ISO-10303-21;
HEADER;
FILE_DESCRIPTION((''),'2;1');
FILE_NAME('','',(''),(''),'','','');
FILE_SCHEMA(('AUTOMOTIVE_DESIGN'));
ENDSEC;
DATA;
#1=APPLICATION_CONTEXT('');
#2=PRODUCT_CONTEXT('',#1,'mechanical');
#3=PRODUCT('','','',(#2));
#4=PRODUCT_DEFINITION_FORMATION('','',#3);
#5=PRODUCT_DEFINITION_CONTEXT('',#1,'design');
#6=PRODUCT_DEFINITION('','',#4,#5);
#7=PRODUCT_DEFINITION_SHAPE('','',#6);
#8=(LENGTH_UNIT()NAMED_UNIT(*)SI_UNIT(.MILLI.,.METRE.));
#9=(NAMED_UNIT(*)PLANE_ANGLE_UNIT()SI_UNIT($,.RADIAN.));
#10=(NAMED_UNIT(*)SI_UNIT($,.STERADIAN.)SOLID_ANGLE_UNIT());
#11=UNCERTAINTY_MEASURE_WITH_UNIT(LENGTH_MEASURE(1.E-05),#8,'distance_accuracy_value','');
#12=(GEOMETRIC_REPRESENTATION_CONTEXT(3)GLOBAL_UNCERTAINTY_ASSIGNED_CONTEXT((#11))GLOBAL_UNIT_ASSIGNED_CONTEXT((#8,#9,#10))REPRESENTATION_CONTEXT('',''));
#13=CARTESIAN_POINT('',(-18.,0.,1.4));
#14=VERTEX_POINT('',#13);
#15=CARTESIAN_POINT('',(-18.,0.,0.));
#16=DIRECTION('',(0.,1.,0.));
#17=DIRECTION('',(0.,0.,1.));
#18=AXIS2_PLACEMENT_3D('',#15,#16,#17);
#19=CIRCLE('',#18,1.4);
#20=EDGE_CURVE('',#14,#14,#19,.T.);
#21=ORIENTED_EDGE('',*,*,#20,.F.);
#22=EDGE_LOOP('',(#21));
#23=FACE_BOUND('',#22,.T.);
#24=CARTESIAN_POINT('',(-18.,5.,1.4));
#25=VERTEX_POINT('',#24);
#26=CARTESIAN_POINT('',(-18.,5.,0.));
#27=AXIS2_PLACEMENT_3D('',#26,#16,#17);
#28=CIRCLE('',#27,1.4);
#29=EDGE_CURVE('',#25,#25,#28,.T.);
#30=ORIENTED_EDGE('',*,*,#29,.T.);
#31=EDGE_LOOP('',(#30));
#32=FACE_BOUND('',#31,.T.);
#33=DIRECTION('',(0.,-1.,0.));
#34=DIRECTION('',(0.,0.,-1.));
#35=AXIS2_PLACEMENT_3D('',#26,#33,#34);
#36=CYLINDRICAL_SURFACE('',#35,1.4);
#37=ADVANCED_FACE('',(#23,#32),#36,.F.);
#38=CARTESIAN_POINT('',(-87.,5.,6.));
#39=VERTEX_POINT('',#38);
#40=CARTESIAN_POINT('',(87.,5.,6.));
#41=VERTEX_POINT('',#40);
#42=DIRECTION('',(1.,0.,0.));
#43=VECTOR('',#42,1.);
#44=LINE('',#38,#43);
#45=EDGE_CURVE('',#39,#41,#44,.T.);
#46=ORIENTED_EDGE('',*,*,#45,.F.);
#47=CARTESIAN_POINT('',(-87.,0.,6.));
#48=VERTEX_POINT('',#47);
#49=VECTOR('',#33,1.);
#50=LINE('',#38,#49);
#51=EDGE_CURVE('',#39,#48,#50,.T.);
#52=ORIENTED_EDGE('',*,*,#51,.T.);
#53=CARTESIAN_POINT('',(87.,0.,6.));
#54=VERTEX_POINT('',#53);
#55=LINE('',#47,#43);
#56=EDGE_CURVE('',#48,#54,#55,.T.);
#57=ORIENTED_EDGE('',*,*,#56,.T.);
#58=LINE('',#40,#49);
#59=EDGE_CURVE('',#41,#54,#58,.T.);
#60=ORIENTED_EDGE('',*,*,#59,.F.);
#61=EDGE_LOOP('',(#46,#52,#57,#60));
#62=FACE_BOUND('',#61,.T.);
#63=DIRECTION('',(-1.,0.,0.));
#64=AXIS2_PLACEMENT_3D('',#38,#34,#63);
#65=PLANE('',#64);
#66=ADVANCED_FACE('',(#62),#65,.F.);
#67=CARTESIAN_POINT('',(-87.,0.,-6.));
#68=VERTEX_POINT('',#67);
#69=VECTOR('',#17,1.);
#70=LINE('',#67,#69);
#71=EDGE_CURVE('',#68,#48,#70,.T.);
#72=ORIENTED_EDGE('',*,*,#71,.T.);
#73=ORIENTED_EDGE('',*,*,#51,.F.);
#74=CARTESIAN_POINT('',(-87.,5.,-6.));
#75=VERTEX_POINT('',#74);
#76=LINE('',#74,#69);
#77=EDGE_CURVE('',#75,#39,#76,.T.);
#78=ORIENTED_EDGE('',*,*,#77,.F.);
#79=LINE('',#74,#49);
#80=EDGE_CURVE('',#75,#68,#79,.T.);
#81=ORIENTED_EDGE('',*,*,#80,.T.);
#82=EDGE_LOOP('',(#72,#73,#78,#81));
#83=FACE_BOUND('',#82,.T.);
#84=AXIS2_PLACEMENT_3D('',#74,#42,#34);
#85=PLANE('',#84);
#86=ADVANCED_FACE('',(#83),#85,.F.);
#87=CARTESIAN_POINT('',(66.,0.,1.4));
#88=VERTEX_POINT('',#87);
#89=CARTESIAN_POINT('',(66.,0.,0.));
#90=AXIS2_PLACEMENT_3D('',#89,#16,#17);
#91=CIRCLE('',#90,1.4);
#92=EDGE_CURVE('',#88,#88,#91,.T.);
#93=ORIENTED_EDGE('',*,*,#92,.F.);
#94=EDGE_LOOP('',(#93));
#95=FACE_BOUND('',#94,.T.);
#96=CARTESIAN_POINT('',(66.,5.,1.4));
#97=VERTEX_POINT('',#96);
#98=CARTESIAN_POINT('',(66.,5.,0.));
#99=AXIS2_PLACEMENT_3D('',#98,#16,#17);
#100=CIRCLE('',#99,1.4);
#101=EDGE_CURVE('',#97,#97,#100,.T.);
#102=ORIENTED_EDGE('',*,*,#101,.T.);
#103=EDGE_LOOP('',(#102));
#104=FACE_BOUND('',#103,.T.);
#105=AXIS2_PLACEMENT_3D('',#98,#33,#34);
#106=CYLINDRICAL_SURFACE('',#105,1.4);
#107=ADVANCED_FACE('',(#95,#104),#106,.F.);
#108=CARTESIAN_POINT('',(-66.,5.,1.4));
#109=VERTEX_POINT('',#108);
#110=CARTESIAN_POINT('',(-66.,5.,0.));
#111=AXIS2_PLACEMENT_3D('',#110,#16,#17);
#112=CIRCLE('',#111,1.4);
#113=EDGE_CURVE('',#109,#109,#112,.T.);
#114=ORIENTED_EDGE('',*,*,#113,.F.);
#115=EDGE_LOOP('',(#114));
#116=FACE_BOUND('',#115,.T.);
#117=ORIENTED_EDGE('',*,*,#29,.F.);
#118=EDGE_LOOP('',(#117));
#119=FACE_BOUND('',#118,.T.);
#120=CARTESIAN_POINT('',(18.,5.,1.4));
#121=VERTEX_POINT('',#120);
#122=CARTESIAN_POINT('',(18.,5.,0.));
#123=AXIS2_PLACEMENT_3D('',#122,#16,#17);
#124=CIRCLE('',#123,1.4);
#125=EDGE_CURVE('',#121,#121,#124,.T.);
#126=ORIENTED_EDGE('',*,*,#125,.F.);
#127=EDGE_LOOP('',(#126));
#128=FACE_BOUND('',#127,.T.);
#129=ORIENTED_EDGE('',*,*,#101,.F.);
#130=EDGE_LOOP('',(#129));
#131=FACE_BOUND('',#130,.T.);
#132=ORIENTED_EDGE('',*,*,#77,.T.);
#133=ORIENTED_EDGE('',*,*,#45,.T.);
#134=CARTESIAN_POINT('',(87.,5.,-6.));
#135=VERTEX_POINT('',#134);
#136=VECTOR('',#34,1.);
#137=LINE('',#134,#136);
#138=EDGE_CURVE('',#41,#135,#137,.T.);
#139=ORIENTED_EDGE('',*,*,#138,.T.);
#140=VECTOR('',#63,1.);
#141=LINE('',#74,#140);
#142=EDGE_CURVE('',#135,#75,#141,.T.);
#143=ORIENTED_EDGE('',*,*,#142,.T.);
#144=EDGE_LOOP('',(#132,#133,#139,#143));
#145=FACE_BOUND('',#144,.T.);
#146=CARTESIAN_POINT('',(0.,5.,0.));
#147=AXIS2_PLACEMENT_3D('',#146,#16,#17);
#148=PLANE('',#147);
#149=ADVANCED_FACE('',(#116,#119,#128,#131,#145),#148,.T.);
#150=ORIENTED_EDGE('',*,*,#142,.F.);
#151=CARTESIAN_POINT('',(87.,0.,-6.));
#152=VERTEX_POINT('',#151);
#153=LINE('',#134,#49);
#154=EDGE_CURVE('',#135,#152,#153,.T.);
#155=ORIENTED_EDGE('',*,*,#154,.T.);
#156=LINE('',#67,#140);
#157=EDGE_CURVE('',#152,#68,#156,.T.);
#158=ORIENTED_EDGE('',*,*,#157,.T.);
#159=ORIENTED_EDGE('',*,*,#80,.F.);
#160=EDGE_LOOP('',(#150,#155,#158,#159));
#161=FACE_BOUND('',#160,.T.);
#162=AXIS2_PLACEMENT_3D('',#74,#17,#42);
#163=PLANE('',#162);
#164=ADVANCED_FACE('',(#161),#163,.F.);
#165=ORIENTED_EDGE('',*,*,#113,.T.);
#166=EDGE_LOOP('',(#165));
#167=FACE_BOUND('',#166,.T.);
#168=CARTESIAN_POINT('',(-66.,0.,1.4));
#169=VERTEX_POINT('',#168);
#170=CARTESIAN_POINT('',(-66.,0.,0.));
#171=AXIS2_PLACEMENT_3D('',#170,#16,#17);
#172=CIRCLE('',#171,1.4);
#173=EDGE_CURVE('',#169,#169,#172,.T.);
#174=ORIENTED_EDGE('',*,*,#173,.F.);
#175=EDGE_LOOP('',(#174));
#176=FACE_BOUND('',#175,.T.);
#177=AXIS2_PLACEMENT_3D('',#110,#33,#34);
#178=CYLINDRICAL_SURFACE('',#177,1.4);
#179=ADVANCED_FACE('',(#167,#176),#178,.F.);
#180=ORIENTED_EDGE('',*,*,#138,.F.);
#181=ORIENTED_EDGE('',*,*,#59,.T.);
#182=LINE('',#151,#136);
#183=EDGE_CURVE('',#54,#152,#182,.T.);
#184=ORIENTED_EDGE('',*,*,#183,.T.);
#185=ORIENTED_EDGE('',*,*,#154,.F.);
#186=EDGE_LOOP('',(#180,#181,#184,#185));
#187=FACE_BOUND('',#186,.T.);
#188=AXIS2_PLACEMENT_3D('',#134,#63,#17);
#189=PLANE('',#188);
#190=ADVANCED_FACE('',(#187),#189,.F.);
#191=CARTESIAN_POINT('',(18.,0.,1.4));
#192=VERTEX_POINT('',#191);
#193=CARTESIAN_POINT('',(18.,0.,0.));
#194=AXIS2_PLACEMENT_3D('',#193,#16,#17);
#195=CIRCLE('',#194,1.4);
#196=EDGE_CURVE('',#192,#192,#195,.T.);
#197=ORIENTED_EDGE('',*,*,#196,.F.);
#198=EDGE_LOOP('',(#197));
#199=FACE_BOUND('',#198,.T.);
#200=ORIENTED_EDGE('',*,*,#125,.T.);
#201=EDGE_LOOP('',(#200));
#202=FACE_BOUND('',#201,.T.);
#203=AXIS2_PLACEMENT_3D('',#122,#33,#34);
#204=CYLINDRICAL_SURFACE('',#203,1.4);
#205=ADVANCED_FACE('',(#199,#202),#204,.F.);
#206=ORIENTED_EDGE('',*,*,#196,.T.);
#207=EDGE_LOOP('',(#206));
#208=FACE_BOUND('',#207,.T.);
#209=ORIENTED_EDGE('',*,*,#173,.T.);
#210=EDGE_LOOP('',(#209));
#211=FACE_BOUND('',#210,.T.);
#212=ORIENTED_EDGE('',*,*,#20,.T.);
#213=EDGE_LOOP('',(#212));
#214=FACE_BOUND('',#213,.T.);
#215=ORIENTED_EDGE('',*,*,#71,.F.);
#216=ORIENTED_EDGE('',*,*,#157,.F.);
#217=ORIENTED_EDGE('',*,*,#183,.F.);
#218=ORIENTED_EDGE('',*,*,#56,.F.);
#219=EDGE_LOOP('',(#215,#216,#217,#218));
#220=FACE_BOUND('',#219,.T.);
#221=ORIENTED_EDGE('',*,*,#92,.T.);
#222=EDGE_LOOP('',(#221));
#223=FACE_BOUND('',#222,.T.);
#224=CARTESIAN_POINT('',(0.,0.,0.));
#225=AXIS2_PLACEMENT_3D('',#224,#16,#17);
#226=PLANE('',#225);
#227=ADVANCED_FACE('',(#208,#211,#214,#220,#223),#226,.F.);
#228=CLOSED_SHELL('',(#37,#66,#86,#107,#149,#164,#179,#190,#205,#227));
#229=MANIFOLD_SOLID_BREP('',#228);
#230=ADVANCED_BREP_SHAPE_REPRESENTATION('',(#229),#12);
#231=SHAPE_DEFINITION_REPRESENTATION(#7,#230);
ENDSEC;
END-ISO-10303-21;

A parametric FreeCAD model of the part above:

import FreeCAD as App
import Part
import Sketcher
from FreeCAD import Vector
Q = App.Units.Quantity

doc = App.newDocument("Part")
params = doc.addObject("Spreadsheet::Sheet", "Params")
for row, (alias, value) in enumerate([
    ("sketch1_diameter", "2.8 mm"),
    ("sketch1_width", "174 mm"),
    ("sketch1_height", "12 mm"),
    ("pad1_length", "5 mm"),
], start=1):
    params.set(f"A{row}", alias)
    params.set(f"B{row}", "=" + value)
    params.setAlias(f"B{row}", alias)

body = doc.addObject("PartDesign::Body", "Body")

# Sketch on XZ plane
sketch1 = doc.addObject("Sketcher::SketchObject", "Sketch")
body.addObject(sketch1)
sketch1.AttachmentSupport = (doc.XZ_Plane, [""])
sketch1.MapMode = "FlatFace"
sketch1.addGeometry(Part.LineSegment(Vector(-87, -6, 0), Vector(-87, 6, 0)), False)
sketch1.addGeometry(Part.LineSegment(Vector(-87, 6, 0), Vector(87, 6, 0)), False)
sketch1.addGeometry(Part.LineSegment(Vector(87, 6, 0), Vector(87, -6, 0)), False)
sketch1.addGeometry(Part.LineSegment(Vector(87, -6, 0), Vector(-87, -6, 0)), False)
sketch1.addGeometry(Part.Circle(Vector(-66, 0, 0), Vector(0, 0, 1), 1.4), False)
sketch1.addGeometry(Part.Circle(Vector(-18, 0, 0), Vector(0, 0, 1), 1.4), False)
sketch1.addGeometry(Part.Circle(Vector(18, 0, 0), Vector(0, 0, 1), 1.4), False)
sketch1.addGeometry(Part.Circle(Vector(66, 0, 0), Vector(0, 0, 1), 1.4), False)
sketch1.addConstraint(Sketcher.Constraint("Coincident", 0, 2, 1, 1))
sketch1.addConstraint(Sketcher.Constraint("Coincident", 1, 2, 2, 1))
sketch1.addConstraint(Sketcher.Constraint("Coincident", 2, 2, 3, 1))
sketch1.addConstraint(Sketcher.Constraint("Coincident", 3, 2, 0, 1))
sketch1.addConstraint(Sketcher.Constraint("Vertical", 0))
sketch1.addConstraint(Sketcher.Constraint("Horizontal", 1))
sketch1.addConstraint(Sketcher.Constraint("Vertical", 2))
sketch1.addConstraint(Sketcher.Constraint("Horizontal", 3))
sketch1.addConstraint(Sketcher.Constraint("Equal", 4, 5))
sketch1.addConstraint(Sketcher.Constraint("Equal", 5, 6))
sketch1.addConstraint(Sketcher.Constraint("Equal", 6, 7))
sketch1.addConstraint(Sketcher.Constraint("Symmetric", 5, 3, 6, 3, -1, 1))
sketch1.addConstraint(Sketcher.Constraint("Symmetric", 4, 3, 7, 3, -1, 1))
sketch1.addConstraint(Sketcher.Constraint("Symmetric", 0, 2, 2, 2, -1, 1))
sketch1.addConstraint(Sketcher.Constraint("PointOnObject", 4, 3, -1))
sketch1.addConstraint(Sketcher.Constraint("PointOnObject", 5, 3, -1))
sketch1.addConstraint(Sketcher.Constraint("Diameter", 4, Q("2.8 mm")))
sketch1.addConstraint(Sketcher.Constraint("DistanceX", 1, 1, 1, 2, Q("174 mm")))
sketch1.addConstraint(Sketcher.Constraint("DistanceY", 0, 1, 0, 2, Q("12 mm")))
sketch1.addConstraint(Sketcher.Constraint("DistanceX", 4, 3, -1, 1, Q("66 mm")))
sketch1.addConstraint(Sketcher.Constraint("DistanceX", 5, 3, -1, 1, Q("18 mm")))
sketch1.setExpression("Constraints[16]", "Params.sketch1_diameter")
sketch1.setExpression("Constraints[17]", "Params.sketch1_width")
sketch1.setExpression("Constraints[18]", "Params.sketch1_height")
pad1 = doc.addObject("PartDesign::Pad", "Pad")
body.addObject(pad1)
pad1.Profile = sketch1
pad1.setExpression("Length", "Params.pad1_length")
pad1.Reversed = True

doc.recompute()
